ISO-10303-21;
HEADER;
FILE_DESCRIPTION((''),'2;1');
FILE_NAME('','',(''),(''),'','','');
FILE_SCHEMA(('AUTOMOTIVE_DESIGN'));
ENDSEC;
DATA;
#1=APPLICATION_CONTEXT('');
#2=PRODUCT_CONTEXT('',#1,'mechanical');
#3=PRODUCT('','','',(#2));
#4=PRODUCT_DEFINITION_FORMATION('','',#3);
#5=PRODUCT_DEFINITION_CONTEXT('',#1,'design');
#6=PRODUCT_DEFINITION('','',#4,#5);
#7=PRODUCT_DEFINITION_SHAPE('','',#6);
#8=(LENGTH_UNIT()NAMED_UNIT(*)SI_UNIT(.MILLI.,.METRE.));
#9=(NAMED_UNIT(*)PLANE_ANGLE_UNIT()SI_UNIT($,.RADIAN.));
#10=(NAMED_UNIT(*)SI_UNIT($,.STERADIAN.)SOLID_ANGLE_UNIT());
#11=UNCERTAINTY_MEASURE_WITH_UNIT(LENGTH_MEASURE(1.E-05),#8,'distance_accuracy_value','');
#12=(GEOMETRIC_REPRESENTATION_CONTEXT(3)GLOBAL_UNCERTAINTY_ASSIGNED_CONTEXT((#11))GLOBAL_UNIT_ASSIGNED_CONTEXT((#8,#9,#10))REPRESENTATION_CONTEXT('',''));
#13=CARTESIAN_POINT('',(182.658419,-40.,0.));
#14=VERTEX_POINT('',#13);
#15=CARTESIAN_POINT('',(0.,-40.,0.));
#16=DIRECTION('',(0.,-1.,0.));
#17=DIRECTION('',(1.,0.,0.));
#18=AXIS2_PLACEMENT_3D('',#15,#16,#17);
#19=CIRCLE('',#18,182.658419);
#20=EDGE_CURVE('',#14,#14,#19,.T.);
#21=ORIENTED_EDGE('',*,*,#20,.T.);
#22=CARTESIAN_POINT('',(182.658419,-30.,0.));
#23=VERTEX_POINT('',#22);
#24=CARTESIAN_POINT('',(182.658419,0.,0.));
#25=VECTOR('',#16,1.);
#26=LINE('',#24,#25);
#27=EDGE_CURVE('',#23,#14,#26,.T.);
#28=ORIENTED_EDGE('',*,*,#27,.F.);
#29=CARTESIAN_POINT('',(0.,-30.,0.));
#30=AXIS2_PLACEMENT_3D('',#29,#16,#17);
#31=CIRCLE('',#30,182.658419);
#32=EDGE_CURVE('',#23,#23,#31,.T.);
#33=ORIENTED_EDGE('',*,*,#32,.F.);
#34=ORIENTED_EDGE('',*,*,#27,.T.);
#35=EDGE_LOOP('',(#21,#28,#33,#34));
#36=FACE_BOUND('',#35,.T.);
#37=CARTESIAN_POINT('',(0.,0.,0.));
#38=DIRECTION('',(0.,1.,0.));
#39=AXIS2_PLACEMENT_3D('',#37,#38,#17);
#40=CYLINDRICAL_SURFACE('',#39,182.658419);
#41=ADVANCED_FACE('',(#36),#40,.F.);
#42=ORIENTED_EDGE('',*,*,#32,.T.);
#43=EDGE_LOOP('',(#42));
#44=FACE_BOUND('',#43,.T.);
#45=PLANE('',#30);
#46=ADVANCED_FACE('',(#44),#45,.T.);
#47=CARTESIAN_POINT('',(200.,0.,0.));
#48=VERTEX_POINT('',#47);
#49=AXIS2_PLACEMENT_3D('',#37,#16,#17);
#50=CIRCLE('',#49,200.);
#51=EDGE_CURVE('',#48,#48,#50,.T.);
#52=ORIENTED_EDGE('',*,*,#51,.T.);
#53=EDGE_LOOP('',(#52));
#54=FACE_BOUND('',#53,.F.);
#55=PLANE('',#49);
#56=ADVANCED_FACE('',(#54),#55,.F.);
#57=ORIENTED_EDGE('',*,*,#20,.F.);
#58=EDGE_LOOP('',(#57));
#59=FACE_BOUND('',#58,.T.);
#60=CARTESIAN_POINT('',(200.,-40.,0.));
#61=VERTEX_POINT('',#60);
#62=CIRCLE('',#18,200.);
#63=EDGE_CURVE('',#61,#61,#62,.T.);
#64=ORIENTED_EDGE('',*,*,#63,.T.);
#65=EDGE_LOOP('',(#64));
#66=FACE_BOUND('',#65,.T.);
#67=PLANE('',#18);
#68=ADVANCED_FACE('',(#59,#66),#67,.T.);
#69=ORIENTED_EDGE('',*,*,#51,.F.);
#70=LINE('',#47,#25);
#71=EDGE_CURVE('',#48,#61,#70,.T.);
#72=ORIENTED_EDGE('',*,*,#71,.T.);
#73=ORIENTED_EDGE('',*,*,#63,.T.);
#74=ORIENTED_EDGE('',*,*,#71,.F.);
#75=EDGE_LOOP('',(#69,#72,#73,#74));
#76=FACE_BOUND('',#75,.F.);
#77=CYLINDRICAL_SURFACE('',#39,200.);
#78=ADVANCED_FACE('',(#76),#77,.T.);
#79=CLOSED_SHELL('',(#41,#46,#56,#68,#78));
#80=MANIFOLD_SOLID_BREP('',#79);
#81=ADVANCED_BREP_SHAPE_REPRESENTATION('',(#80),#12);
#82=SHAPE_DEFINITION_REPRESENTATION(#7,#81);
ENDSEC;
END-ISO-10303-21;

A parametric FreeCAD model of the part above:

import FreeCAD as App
import Part
import Sketcher

V = App.Vector
Q = App.Units.Quantity

doc = App.newDocument("Part")
body = doc.addObject("PartDesign::Body", "Body")

sketch1 = body.newObject("Sketcher::SketchObject", "Sketch")
sketch1.AttachmentSupport = (doc.getObject("XZ_Plane"), [""])
sketch1.MapMode = "FlatFace"
sketch1.addGeometry([
    Part.Circle(V(0, 0, 0), V(0, 0, 1), 200),
    Part.Circle(V(0, 0, 0), V(0, 0, 1), 182.658419),
], False)
sketch1.addConstraint([
    Sketcher.Constraint("Coincident", 0, 3, -1, 1),
    Sketcher.Constraint("Coincident", 1, 3, -1, 1),
    Sketcher.Constraint("Diameter", 0, Q("400 mm")),
    Sketcher.Constraint("Diameter", 1, Q("365.316838 mm")),
])
pad1 = body.newObject("PartDesign::Pad", "Pad")
pad1.Profile = sketch1
pad1.Length = 40

sketch2 = body.newObject("Sketcher::SketchObject", "Sketch001")
sketch2.AttachmentSupport = (doc.getObject("XZ_Plane"), [""])
sketch2.MapMode = "FlatFace"
sketch2.addGeometry(Part.Circle(V(0, 0, 0), V(0, 0, 1), 182.658419), False)
sketch2.addConstraint([
    Sketcher.Constraint("Coincident", 0, 3, -1, 1),
    Sketcher.Constraint("Diameter", 0, Q("365.316838 mm")),
])
pad2 = body.newObject("PartDesign::Pad", "Pad001")
pad2.Profile = sketch2
pad2.Length = 30

doc.recompute()
